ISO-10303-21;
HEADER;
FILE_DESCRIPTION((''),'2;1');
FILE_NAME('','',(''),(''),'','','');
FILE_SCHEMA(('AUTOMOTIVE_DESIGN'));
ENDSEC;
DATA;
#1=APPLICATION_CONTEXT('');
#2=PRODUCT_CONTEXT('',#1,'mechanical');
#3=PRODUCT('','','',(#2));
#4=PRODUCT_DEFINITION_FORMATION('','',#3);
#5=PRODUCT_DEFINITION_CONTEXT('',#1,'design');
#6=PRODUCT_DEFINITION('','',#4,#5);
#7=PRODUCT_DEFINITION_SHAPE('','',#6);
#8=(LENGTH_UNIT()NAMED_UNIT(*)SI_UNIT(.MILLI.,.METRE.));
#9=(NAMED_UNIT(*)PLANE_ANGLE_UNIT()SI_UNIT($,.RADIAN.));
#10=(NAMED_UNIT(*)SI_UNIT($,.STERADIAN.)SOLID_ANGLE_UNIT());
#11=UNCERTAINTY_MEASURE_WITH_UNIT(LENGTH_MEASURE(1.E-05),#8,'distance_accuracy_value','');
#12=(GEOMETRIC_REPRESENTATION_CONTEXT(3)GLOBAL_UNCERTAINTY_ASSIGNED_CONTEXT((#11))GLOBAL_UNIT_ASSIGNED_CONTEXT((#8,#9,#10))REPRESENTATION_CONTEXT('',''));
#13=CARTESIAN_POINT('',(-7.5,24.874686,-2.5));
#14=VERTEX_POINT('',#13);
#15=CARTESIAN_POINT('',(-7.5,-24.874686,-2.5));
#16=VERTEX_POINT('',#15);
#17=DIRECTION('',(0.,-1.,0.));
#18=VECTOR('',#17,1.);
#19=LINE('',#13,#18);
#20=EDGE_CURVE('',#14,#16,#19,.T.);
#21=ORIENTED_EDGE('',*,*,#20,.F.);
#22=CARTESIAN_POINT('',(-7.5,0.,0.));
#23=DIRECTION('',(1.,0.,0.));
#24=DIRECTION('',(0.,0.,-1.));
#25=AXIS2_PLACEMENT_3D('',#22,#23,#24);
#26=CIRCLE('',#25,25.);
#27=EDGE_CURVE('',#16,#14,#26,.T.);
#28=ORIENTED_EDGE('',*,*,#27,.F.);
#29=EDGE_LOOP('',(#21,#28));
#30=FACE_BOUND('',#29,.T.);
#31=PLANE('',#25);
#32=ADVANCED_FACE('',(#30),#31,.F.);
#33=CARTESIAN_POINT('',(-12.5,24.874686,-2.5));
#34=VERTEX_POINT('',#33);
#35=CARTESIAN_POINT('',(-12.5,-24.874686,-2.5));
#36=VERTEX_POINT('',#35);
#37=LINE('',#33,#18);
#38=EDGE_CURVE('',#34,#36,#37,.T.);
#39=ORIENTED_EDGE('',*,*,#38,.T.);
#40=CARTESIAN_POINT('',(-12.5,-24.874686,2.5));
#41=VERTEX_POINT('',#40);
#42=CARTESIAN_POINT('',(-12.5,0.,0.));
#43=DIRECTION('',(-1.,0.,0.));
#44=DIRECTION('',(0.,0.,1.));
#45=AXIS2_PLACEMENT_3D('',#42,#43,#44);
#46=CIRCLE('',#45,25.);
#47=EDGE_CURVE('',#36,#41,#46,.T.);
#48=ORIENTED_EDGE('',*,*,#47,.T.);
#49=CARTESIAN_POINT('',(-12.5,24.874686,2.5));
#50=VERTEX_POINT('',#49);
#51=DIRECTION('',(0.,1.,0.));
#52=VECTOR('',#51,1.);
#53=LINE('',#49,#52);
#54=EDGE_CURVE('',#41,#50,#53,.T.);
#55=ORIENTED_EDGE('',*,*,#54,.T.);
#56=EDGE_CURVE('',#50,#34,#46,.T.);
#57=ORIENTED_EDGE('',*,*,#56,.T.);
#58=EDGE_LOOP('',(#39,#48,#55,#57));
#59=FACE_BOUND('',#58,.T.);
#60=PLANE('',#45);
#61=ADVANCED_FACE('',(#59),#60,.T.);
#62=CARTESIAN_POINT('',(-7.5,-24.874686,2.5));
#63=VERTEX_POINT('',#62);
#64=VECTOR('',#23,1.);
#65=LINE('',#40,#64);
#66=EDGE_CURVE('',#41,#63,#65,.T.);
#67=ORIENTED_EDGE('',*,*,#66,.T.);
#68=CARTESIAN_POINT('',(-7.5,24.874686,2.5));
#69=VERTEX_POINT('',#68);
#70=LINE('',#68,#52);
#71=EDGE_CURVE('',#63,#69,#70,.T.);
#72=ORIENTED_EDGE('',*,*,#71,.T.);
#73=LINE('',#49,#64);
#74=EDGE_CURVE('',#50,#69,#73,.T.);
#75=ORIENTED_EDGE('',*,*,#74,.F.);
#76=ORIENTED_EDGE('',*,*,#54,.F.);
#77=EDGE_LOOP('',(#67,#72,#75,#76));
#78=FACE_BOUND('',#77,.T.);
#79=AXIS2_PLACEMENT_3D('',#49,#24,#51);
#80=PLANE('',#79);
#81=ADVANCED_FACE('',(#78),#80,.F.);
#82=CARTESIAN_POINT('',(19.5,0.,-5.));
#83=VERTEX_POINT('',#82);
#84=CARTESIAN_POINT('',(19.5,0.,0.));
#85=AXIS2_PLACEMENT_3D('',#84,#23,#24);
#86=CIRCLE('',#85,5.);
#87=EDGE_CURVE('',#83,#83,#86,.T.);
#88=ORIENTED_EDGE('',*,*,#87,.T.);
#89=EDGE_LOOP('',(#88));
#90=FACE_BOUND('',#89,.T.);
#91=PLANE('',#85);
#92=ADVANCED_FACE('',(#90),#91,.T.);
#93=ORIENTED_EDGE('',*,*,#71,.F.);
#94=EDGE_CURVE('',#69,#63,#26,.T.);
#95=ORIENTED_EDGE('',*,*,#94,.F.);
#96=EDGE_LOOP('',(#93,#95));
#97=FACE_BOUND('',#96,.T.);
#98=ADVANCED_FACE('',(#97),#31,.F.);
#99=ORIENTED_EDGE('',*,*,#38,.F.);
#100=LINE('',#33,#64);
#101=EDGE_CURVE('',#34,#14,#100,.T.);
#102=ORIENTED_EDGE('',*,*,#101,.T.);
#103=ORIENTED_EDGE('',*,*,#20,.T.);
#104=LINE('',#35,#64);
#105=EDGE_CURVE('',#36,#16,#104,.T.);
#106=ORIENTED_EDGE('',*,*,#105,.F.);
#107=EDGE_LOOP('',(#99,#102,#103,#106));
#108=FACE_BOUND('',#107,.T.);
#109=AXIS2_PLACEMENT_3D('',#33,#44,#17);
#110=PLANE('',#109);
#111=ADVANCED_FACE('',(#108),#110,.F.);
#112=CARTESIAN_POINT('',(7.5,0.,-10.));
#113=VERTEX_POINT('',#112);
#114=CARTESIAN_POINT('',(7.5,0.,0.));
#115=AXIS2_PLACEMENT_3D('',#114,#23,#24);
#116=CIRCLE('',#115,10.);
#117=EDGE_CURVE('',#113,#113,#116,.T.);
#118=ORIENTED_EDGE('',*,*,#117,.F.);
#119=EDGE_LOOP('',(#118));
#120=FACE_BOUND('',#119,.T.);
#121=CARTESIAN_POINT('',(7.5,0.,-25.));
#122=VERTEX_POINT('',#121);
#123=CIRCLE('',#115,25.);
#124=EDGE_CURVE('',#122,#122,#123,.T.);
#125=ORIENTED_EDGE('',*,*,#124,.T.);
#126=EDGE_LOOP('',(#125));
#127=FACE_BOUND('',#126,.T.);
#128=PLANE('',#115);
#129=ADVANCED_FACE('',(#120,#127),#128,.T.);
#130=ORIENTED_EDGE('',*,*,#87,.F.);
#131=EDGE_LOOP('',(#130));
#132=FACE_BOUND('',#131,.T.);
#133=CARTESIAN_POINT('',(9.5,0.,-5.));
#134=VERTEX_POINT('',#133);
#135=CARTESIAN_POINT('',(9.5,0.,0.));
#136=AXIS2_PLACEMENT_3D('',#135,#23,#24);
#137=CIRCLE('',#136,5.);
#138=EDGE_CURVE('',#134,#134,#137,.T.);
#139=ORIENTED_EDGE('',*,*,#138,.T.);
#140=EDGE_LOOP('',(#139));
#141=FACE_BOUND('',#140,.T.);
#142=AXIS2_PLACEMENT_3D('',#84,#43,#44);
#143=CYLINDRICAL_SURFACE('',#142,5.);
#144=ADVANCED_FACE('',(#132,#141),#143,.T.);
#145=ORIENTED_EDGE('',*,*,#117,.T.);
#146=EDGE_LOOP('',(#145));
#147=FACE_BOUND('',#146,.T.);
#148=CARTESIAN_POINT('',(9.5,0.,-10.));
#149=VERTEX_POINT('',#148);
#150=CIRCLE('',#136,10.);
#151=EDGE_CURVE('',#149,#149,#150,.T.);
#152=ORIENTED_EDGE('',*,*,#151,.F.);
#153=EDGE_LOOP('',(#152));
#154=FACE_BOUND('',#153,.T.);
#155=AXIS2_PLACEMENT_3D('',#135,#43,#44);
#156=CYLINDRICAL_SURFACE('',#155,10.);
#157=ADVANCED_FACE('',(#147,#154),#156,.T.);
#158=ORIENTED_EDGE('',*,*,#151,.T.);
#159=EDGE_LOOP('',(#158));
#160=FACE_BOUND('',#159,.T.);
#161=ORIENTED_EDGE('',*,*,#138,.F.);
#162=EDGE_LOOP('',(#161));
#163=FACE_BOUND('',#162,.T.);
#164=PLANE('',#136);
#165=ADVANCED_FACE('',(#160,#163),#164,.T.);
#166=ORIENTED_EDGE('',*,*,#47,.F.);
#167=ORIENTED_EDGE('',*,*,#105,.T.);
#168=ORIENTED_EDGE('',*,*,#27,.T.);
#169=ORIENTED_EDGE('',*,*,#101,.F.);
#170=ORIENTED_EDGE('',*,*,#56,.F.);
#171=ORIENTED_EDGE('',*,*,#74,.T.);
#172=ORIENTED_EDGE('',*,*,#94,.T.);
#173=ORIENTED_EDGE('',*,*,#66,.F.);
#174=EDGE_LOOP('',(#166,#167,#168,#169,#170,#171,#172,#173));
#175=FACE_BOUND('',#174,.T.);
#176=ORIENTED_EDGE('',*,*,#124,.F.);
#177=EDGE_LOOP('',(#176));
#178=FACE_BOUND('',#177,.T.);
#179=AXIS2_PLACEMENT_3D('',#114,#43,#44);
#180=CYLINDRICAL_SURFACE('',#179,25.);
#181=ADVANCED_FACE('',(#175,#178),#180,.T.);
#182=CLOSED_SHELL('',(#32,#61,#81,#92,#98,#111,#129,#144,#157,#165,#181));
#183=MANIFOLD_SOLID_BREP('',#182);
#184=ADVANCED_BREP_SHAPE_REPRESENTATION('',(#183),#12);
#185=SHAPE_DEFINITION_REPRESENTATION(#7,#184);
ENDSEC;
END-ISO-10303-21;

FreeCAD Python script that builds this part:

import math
import FreeCAD as App
import Part
import Sketcher
Q = App.Units.Quantity

doc = App.newDocument("Part")
body = doc.addObject("PartDesign::Body", "Body")

# Sketch on YZ plane
sketch1 = body.newObject("Sketcher::SketchObject", "Sketch")
sketch1.AttachmentSupport = (doc.getObject("YZ_Plane"), [""])
sketch1.MapMode = "FlatFace"
sketch1.addGeometry(Part.Circle(App.Vector(0, 0, 0), App.Vector(0, 0, 1), 25), False)
sketch1.addConstraint(Sketcher.Constraint("Coincident", 0, 3, -1, 1))
sketch1.addConstraint(Sketcher.Constraint("Diameter", 0, Q("50 mm")))
pad1 = body.newObject("PartDesign::Pad", "Pad")
pad1.Profile = sketch1
pad1.Length = 15
pad1.Midplane = True

# Sketch on YZ plane
sketch2 = body.newObject("Sketcher::SketchObject", "Sketch001")
sketch2.AttachmentSupport = (doc.getObject("YZ_Plane"), [""])
sketch2.MapMode = "FlatFace"
sketch2.AttachmentOffset = App.Placement(App.Vector(0, 0, 7.5), App.Rotation())
sketch2.addGeometry(Part.Circle(App.Vector(0, 0, 0), App.Vector(0, 0, 1), 5), False)
sketch2.addConstraint(Sketcher.Constraint("Coincident", 0, 3, -1, 1))
sketch2.addConstraint(Sketcher.Constraint("Diameter", 0, Q("10 mm")))
pad2 = body.newObject("PartDesign::Pad", "Pad001")
pad2.Profile = sketch2
pad2.Length = 12

# Sketch on YZ plane
sketch3 = body.newObject("Sketcher::SketchObject", "Sketch002")
sketch3.AttachmentSupport = (doc.getObject("YZ_Plane"), [""])
sketch3.MapMode = "FlatFace"
sketch3.AttachmentOffset = App.Placement(App.Vector(0, 0, -7.5), App.Rotation())
sketch3.addGeometry(Part.LineSegment(App.Vector(-24.874686, 2.5, 0), App.Vector(24.874686, 2.5, 0)), False)
sketch3.addGeometry(Part.ArcOfCircle(Part.Circle(App.Vector(0, 0, 0), App.Vector(0, 0, 1), 25), math.radians(-5.73917), math.radians(5.73917)), False)
sketch3.addGeometry(Part.LineSegment(App.Vector(24.874686, -2.5, 0), App.Vector(-24.874686, -2.5, 0)), False)
sketch3.addGeometry(Part.ArcOfCircle(Part.Circle(App.Vector(0, 0, 0), App.Vector(0, 0, 1), 25), math.radians(174.26083), math.radians(185.73917)), False)
sketch3.addConstraint(Sketcher.Constraint("Coincident", 0, 2, 1, 2))
sketch3.addConstraint(Sketcher.Constraint("Coincident", 1, 1, 2, 1))
sketch3.addConstraint(Sketcher.Constraint("Coincident", 2, 2, 3, 2))
sketch3.addConstraint(Sketcher.Constraint("Coincident", 3, 1, 0, 1))
sketch3.addConstraint(Sketcher.Constraint("Horizontal", 0))
sketch3.addConstraint(Sketcher.Constraint("Horizontal", 2))
sketch3.addConstraint(Sketcher.Constraint("Coincident", 1, 3, -1, 1))
sketch3.addConstraint(Sketcher.Constraint("Coincident", 3, 3, -1, 1))
sketch3.addConstraint(Sketcher.Constraint("Equal", 1, 3))
sketch3.addConstraint(Sketcher.Constraint("Vertical", 0, 2, 1, 1))
sketch3.addConstraint(Sketcher.Constraint("Radius", 1, Q("25 mm")))
sketch3.addConstraint(Sketcher.Constraint("DistanceY", 1, 1, 0, 2, Q("5 mm")))
pad3 = body.newObject("PartDesign::Pad", "Pad002")
pad3.Profile = sketch3
pad3.Length = 5
pad3.Reversed = True

# Sketch on YZ plane
sketch4 = body.newObject("Sketcher::SketchObject", "Sketch003")
sketch4.AttachmentSupport = (doc.getObject("YZ_Plane"), [""])
sketch4.MapMode = "FlatFace"
sketch4.AttachmentOffset = App.Placement(App.Vector(0, 0, 7.5), App.Rotation())
sketch4.addGeometry(Part.Circle(App.Vector(0, 0, 0), App.Vector(0, 0, 1), 10), False)
sketch4.addConstraint(Sketcher.Constraint("Coincident", 0, 3, -1, 1))
sketch4.addConstraint(Sketcher.Constraint("Diameter", 0, Q("20 mm")))
pad4 = body.newObject("PartDesign::Pad", "Pad003")
pad4.Profile = sketch4
pad4.Length = 2

doc.recompute()
